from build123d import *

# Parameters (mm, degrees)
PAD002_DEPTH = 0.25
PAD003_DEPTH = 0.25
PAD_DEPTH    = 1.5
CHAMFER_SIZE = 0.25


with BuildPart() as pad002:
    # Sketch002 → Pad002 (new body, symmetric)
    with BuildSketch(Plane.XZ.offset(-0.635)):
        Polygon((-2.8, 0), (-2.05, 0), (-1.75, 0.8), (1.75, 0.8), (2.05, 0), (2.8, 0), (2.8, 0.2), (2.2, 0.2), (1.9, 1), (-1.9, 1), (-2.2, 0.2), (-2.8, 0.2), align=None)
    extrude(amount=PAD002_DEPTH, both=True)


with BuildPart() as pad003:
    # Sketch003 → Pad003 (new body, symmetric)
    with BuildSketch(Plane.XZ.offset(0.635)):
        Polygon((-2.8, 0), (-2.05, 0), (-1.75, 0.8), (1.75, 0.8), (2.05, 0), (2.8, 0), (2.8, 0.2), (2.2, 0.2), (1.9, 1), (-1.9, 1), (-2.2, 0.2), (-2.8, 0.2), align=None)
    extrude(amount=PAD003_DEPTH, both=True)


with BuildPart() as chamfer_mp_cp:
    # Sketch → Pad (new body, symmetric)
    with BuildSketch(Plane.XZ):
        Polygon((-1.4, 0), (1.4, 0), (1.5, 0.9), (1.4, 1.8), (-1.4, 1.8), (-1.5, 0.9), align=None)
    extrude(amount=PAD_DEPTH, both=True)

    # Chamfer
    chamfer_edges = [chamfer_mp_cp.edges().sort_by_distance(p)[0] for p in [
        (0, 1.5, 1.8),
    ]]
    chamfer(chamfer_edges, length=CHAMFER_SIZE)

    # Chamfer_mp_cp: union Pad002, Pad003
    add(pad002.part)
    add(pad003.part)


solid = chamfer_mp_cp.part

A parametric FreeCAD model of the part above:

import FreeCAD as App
import Part
import Sketcher
Q = App.Units.Quantity


def edges_at(feature, points):
    """Names of the edges that pass closest to the given points."""
    edges = feature.Shape.Edges
    near = lambda p: min(range(len(edges)), key=lambda i: edges[i].distToShape(Part.Vertex(*p))[0])
    return sorted({f"Edge{near(p) + 1}" for p in points})


def add_polygon(sketch, points):
    """Adds a closed chain of lines whose ends are joined by coincident constraints."""
    first, n = sketch.GeometryCount, len(points)
    for a, b in zip(points, points[1:] + points[:1]):
        sketch.addGeometry(Part.LineSegment(App.Vector(*a, 0), App.Vector(*b, 0)), False)
    for i in range(n):
        sketch.addConstraint(Sketcher.Constraint("Coincident", first + i, 2, first + (i + 1) % n, 1))

doc = App.newDocument("Part")
body = doc.addObject("PartDesign::Body", "Body")

# Sketch on XZ plane
sketch1 = body.newObject("Sketcher::SketchObject", "Sketch")
sketch1.AttachmentSupport = (doc.getObject("XZ_Plane"), [""])
sketch1.MapMode = "FlatFace"
sketch1.AttachmentOffset = App.Placement(App.Vector(0, 0, -0.635), App.Rotation())
add_polygon(sketch1, [(-2.8, 0), (-2.05, 0), (-1.75, 0.8), (1.75, 0.8), (2.05, 0), (2.8, 0), (2.8, 0.2), (2.2, 0.2), (1.9, 1), (-1.9, 1), (-2.2, 0.2), (-2.8, 0.2)])  # lines 0-11
sketch1.addConstraint(Sketcher.Constraint("Horizontal", 0))
sketch1.addConstraint(Sketcher.Constraint("Horizontal", 2))
sketch1.addConstraint(Sketcher.Constraint("Horizontal", 4))
sketch1.addConstraint(Sketcher.Constraint("Vertical", 5))
sketch1.addConstraint(Sketcher.Constraint("Horizontal", 6))
sketch1.addConstraint(Sketcher.Constraint("Horizontal", 8))
sketch1.addConstraint(Sketcher.Constraint("Horizontal", 10))
sketch1.addConstraint(Sketcher.Constraint("Vertical", 11))
sketch1.addConstraint(Sketcher.Constraint("Symmetric", 0, 2, 3, 2, -1, 1))
sketch1.addConstraint(Sketcher.Constraint("Symmetric", 6, 2, 9, 2, -2))
sketch1.addConstraint(Sketcher.Constraint("Symmetric", 4, 2, 11, 2, -2))
sketch1.addConstraint(Sketcher.Constraint("Parallel", 3, 7))
sketch1.addConstraint(Sketcher.Constraint("Parallel", 1, 9))
sketch1.addConstraint(Sketcher.Constraint("Equal", 1, 3))
sketch1.addConstraint(Sketcher.Constraint("Equal", 3, 7))
sketch1.addConstraint(Sketcher.Constraint("DistanceX", 2, 1, 2, 2, Q("3.5 mm")))
sketch1.addConstraint(Sketcher.Constraint("DistanceX", 6, 2, 6, 1, Q("0.6 mm")))
sketch1.addConstraint(Sketcher.Constraint("DistanceX", 8, 2, 8, 1, Q("3.8 mm")))
sketch1.addConstraint(Sketcher.Constraint("DistanceY", 5, 1, 5, 2, Q("0.2 mm")))
sketch1.addConstraint(Sketcher.Constraint("DistanceY", -1, 1, 7, 2, Q("1 mm")))
sketch1.addConstraint(Sketcher.Constraint("DistanceX", -1, 1, 4, 2, Q("2.8 mm")))
pad1 = body.newObject("PartDesign::Pad", "Pad")
pad1.Profile = sketch1
pad1.Length = 0.5
pad1.Midplane = True
body2 = doc.addObject("PartDesign::Body", "Body001")

# Sketch on XZ plane
sketch2 = body2.newObject("Sketcher::SketchObject", "Sketch001")
sketch2.AttachmentSupport = (doc.getObject("XZ_Plane001"), [""])
sketch2.MapMode = "FlatFace"
sketch2.AttachmentOffset = App.Placement(App.Vector(0, 0, 0.635), App.Rotation())
add_polygon(sketch2, [(-2.8, 0), (-2.05, 0), (-1.75, 0.8), (1.75, 0.8), (2.05, 0), (2.8, 0), (2.8, 0.2), (2.2, 0.2), (1.9, 1), (-1.9, 1), (-2.2, 0.2), (-2.8, 0.2)])  # lines 0-11
sketch2.addConstraint(Sketcher.Constraint("Horizontal", 0))
sketch2.addConstraint(Sketcher.Constraint("Horizontal", 2))
sketch2.addConstraint(Sketcher.Constraint("Horizontal", 4))
sketch2.addConstraint(Sketcher.Constraint("Vertical", 5))
sketch2.addConstraint(Sketcher.Constraint("Horizontal", 6))
sketch2.addConstraint(Sketcher.Constraint("Horizontal", 8))
sketch2.addConstraint(Sketcher.Constraint("Horizontal", 10))
sketch2.addConstraint(Sketcher.Constraint("Vertical", 11))
sketch2.addConstraint(Sketcher.Constraint("Symmetric", 0, 2, 3, 2, -1, 1))
sketch2.addConstraint(Sketcher.Constraint("Symmetric", 6, 2, 9, 2, -2))
sketch2.addConstraint(Sketcher.Constraint("Symmetric", 4, 2, 11, 2, -2))
sketch2.addConstraint(Sketcher.Constraint("Parallel", 3, 7))
sketch2.addConstraint(Sketcher.Constraint("Parallel", 1, 9))
sketch2.addConstraint(Sketcher.Constraint("Equal", 1, 3))
sketch2.addConstraint(Sketcher.Constraint("Equal", 3, 7))
sketch2.addConstraint(Sketcher.Constraint("DistanceX", 2, 1, 2, 2, Q("3.5 mm")))
sketch2.addConstraint(Sketcher.Constraint("DistanceX", 6, 2, 6, 1, Q("0.6 mm")))
sketch2.addConstraint(Sketcher.Constraint("DistanceX", 8, 2, 8, 1, Q("3.8 mm")))
sketch2.addConstraint(Sketcher.Constraint("DistanceY", 5, 1, 5, 2, Q("0.2 mm")))
sketch2.addConstraint(Sketcher.Constraint("DistanceY", -1, 1, 7, 2, Q("1 mm")))
sketch2.addConstraint(Sketcher.Constraint("DistanceX", -1, 1, 4, 2, Q("2.8 mm")))
pad2 = body2.newObject("PartDesign::Pad", "Pad001")
pad2.Profile = sketch2
pad2.Length = 0.5
pad2.Midplane = True
body3 = doc.addObject("PartDesign::Body", "Body002")

# Sketch on XZ plane
sketch3 = body3.newObject("Sketcher::SketchObject", "Sketch002")
sketch3.AttachmentSupport = (doc.getObject("XZ_Plane002"), [""])
sketch3.MapMode = "FlatFace"
add_polygon(sketch3, [(-1.4, 0), (1.4, 0), (1.5, 0.9), (1.4, 1.8), (-1.4, 1.8), (-1.5, 0.9)])  # lines 0-5
sketch3.addConstraint(Sketcher.Constraint("Horizontal", 0))
sketch3.addConstraint(Sketcher.Constraint("Horizontal", 3))
sketch3.addConstraint(Sketcher.Constraint("Symmetric", 0, 2, 5, 2, -1, 1))
sketch3.addConstraint(Sketcher.Constraint("Symmetric", 1, 2, 4, 2, -2))
sketch3.addConstraint(Sketcher.Constraint("Parallel", 1, 4))
sketch3.addConstraint(Sketcher.Constraint("Parallel", 2, 5))
sketch3.addConstraint(Sketcher.Constraint("Vertical", 0, 2, 2, 2))
sketch3.addConstraint(Sketcher.Constraint("DistanceX", 0, 1, 0, 2, Q("2.8 mm")))
sketch3.addConstraint(Sketcher.Constraint("DistanceX", 4, 2, 1, 2, Q("3 mm")))
sketch3.addConstraint(Sketcher.Constraint("DistanceY", -1, 1, 1, 2, Q("0.9 mm")))
pad3 = body3.newObject("PartDesign::Pad", "Pad002")
pad3.Profile = sketch3
pad3.Length = 3
pad3.Midplane = True
doc.recompute()

chamfer = body3.newObject("PartDesign::Chamfer", "Chamfer")
chamfer.Base = (pad3, edges_at(pad3, [(0, 1.5, 1.8)]))
chamfer.Size = 0.25
doc.recompute()

boolean = body3.newObject("PartDesign::Boolean", "Boolean")
boolean.Type = "Fuse"
boolean.addObjects([body])
doc.recompute()

boolean2 = body3.newObject("PartDesign::Boolean", "Boolean001")
boolean2.Type = "Fuse"
boolean2.addObjects([body2])

doc.recompute()
